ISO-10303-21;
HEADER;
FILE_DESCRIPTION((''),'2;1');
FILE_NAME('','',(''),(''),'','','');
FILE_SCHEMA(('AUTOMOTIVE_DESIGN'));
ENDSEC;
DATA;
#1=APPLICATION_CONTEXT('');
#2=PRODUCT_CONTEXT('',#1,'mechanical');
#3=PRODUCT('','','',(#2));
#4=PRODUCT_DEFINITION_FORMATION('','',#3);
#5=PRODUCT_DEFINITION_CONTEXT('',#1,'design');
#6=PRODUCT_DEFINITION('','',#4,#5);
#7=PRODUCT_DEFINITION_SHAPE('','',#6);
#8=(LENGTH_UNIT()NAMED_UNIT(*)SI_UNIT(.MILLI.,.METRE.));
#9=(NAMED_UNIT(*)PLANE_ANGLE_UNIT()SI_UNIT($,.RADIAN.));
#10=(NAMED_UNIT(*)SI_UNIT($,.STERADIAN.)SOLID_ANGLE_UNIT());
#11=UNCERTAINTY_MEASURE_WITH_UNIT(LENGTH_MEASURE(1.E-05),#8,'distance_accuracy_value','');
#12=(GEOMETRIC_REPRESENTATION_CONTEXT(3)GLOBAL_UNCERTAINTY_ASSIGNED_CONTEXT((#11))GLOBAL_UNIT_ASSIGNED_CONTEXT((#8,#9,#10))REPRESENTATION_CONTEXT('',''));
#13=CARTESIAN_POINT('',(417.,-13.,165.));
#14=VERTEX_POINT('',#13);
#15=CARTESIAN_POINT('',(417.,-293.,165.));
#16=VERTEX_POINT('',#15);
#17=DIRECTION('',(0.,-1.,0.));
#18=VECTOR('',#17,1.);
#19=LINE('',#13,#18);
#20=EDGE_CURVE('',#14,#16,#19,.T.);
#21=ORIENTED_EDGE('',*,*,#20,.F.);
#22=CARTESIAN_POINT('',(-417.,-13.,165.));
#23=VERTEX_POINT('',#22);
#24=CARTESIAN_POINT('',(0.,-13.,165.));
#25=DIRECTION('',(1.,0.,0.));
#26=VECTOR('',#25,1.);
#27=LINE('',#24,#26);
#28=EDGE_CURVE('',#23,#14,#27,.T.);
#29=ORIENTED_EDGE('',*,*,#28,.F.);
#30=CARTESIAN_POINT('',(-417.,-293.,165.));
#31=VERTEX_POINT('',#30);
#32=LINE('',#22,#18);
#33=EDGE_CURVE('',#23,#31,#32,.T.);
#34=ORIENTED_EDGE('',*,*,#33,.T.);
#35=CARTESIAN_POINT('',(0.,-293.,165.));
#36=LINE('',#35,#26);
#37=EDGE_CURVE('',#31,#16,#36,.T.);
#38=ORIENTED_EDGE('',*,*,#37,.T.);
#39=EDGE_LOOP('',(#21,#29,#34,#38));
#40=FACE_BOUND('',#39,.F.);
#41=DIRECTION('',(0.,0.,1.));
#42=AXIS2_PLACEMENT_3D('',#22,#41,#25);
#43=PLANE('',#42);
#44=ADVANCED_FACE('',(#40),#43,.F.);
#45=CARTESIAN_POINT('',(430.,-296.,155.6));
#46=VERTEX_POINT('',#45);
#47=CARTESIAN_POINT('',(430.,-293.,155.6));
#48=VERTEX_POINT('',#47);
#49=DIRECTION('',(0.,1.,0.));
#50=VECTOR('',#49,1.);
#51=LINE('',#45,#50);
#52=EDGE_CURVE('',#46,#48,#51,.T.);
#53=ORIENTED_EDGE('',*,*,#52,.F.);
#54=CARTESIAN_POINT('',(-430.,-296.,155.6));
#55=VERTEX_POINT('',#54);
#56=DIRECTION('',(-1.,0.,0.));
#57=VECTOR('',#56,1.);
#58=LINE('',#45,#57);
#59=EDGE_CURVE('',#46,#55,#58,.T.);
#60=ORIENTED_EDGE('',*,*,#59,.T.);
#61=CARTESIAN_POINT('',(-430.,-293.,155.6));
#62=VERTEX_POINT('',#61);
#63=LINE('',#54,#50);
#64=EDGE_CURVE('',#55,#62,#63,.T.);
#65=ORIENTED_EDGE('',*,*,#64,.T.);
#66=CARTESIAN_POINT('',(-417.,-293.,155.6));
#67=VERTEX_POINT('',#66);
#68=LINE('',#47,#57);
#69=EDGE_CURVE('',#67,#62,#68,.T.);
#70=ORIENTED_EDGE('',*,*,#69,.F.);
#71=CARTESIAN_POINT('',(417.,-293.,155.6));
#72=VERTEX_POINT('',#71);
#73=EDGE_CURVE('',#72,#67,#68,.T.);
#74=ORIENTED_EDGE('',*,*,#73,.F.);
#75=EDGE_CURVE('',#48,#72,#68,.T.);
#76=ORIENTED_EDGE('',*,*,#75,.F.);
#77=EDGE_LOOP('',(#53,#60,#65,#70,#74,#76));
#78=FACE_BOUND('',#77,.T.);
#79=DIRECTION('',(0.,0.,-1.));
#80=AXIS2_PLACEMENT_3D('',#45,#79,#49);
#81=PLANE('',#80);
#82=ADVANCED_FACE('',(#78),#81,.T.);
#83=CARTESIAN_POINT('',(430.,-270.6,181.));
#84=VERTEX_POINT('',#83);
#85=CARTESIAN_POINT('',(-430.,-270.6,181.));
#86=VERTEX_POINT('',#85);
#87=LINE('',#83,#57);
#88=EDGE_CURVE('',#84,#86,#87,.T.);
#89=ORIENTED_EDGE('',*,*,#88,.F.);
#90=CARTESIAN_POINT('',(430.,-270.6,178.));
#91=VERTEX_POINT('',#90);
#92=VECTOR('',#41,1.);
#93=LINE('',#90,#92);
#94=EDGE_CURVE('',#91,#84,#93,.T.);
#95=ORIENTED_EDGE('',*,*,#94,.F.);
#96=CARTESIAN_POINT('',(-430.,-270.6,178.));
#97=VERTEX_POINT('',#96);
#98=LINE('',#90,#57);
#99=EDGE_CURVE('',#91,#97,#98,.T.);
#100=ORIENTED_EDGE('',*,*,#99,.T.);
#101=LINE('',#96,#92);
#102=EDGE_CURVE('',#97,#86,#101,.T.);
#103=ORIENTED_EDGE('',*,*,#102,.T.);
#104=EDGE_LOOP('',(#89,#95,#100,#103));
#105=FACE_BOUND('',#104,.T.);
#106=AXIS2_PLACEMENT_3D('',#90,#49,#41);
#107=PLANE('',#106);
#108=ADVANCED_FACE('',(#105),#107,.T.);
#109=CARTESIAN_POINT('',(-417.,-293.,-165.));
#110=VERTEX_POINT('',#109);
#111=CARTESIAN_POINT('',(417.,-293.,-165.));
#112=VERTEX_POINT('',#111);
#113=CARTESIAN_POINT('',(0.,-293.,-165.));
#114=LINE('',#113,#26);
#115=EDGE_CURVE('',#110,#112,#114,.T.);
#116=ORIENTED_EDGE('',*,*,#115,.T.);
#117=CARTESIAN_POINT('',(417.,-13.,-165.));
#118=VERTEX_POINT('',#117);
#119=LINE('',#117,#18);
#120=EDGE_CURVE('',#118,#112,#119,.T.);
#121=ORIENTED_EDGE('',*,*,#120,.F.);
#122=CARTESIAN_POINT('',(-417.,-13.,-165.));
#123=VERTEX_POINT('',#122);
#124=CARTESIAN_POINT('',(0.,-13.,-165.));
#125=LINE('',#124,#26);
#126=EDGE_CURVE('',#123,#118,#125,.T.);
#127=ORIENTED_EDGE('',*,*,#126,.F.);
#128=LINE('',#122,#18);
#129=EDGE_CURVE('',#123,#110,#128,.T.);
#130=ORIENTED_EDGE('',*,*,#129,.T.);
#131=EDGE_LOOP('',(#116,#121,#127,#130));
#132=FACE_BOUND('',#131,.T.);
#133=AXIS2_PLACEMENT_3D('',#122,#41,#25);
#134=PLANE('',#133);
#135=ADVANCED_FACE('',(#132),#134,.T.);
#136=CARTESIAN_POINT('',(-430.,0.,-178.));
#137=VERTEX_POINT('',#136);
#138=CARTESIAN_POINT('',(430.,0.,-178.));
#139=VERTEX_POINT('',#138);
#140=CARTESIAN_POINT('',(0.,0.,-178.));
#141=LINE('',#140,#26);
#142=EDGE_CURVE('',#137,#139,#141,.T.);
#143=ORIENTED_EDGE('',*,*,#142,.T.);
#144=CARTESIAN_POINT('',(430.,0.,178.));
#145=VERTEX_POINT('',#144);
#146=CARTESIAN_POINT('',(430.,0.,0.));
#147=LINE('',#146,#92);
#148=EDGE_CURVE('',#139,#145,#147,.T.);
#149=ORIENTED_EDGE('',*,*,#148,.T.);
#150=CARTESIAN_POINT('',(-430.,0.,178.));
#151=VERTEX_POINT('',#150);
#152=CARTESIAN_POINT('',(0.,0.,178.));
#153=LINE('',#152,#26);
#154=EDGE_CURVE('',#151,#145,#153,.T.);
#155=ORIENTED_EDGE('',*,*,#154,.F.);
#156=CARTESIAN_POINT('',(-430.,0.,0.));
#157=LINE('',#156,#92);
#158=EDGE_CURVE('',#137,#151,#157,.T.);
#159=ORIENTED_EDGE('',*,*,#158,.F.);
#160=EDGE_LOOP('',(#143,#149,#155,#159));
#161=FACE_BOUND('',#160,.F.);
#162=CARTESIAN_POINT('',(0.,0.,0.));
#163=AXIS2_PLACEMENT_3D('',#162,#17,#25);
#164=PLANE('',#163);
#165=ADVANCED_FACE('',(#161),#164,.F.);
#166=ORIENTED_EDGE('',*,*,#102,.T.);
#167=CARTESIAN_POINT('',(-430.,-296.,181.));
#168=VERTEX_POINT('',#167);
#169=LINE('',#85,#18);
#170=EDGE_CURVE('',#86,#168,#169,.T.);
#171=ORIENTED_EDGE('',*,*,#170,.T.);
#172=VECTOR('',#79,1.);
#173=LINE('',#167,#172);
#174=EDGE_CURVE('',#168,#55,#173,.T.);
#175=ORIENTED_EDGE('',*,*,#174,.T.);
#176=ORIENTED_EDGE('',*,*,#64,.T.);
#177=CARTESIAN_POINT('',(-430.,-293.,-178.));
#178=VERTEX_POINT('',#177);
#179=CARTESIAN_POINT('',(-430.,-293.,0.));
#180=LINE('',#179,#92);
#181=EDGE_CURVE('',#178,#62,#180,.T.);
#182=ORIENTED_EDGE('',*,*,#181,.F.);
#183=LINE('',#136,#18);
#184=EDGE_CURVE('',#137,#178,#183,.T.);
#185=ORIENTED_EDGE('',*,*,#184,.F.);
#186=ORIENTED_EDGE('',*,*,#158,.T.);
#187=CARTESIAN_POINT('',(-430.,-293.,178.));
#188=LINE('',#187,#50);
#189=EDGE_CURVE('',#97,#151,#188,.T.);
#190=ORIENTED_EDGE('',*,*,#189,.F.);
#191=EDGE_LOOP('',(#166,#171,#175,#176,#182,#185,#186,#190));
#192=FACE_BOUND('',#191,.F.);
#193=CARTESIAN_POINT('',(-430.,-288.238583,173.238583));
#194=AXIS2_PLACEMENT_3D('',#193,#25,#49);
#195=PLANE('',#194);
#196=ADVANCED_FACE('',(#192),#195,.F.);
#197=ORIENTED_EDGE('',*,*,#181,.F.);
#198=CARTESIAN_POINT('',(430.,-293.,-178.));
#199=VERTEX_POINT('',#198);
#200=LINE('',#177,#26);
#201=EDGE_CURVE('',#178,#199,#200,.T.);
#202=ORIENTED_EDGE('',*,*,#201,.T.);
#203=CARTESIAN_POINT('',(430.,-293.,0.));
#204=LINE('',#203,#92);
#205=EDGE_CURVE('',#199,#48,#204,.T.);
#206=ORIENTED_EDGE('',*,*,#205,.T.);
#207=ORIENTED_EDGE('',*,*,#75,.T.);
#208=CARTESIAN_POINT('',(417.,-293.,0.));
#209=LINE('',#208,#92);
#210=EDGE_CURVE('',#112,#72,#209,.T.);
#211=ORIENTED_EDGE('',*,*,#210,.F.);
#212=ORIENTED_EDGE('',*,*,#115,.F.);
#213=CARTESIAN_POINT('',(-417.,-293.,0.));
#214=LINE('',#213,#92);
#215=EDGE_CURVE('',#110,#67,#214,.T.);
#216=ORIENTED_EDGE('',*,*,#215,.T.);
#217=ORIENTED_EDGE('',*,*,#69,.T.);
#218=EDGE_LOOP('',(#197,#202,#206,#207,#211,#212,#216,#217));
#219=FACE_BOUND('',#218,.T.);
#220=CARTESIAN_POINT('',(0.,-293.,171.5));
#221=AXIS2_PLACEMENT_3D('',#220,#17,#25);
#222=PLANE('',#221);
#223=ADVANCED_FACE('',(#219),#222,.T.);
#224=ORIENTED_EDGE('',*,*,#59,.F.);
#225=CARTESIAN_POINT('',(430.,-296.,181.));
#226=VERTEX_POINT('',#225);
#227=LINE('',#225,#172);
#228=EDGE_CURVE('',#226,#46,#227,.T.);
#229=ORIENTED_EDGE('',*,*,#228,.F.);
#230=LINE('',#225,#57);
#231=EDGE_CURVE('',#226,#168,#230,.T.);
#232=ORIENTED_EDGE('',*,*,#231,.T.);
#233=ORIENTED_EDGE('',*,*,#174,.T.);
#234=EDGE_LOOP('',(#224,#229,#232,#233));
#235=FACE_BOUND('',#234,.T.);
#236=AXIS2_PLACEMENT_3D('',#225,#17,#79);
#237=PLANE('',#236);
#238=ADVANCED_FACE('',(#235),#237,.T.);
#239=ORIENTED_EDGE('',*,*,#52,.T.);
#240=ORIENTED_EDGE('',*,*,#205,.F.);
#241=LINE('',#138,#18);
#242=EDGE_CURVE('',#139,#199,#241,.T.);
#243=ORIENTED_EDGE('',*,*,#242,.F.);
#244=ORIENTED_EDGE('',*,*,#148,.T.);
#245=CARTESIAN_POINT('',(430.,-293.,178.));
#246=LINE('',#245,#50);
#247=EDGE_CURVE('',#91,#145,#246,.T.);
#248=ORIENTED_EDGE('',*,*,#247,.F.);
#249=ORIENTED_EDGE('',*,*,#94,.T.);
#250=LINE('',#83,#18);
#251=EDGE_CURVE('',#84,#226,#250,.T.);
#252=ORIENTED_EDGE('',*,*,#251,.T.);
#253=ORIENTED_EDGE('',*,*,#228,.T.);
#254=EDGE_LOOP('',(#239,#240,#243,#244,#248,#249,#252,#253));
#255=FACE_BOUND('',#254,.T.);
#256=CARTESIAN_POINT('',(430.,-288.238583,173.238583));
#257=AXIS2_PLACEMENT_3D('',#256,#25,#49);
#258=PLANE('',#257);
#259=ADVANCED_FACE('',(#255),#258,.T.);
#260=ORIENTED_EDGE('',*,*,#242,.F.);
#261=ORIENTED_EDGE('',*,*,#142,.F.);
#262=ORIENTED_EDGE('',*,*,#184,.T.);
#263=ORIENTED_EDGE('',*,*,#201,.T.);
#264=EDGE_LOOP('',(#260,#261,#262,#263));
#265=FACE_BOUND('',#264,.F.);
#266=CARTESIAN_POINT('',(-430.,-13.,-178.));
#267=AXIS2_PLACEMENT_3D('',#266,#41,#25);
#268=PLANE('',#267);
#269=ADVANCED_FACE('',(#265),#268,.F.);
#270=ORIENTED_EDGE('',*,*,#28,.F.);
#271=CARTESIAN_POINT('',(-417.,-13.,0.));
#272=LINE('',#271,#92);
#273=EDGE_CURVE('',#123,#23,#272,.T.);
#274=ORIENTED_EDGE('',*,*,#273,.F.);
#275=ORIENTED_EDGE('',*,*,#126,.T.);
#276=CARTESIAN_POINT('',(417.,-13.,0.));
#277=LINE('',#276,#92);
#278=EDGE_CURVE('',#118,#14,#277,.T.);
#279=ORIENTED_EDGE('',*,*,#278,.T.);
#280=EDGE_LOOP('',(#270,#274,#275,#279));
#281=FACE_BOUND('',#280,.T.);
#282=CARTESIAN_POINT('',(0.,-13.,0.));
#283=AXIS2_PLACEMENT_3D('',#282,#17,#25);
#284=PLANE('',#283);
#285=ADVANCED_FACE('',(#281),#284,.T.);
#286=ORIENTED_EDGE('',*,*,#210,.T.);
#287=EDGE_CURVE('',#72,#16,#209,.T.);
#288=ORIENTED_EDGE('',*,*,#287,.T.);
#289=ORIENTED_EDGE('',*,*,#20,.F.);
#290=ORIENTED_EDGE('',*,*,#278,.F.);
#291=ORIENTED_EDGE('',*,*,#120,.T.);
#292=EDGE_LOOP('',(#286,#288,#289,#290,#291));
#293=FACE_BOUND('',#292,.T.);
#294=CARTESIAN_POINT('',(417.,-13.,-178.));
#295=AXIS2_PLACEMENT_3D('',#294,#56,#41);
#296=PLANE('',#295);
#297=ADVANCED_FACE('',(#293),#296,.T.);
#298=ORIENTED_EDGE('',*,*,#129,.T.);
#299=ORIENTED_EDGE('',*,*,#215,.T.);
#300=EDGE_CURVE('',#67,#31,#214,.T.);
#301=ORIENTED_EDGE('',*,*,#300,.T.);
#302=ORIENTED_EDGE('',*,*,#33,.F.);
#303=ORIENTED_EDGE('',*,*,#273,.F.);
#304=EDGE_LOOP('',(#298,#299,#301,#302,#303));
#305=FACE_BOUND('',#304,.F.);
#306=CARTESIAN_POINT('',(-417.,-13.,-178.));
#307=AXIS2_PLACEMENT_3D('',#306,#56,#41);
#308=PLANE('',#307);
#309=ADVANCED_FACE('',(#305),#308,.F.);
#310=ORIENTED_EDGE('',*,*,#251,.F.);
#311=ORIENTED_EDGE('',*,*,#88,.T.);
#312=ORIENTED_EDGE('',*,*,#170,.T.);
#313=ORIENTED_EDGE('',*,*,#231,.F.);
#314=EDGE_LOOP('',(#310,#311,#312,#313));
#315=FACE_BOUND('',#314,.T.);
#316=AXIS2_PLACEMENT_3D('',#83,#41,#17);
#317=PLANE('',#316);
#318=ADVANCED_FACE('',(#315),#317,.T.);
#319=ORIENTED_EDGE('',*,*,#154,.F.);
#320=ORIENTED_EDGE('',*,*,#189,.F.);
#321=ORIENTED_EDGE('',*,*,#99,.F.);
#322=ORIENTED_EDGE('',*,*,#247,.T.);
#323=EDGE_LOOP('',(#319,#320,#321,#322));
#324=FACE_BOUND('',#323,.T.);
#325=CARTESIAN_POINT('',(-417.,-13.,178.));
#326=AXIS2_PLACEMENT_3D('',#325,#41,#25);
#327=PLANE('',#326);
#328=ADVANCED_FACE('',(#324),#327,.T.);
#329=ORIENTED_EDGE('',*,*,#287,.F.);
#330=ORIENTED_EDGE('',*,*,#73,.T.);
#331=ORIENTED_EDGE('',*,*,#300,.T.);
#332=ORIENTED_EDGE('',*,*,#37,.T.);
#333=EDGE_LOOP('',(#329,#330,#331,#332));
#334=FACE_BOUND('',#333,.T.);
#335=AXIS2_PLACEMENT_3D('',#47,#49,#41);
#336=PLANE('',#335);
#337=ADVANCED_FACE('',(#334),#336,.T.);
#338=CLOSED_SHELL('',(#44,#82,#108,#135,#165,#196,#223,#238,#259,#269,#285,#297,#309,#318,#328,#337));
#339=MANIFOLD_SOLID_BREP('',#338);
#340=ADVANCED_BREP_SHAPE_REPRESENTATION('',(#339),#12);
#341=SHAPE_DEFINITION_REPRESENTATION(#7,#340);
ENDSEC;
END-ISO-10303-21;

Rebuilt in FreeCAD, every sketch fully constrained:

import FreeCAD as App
import Part
import Sketcher
Q = App.Units.Quantity

doc = App.newDocument("Part")
body = doc.addObject("PartDesign::Body", "Body")

sketch1 = body.newObject("Sketcher::SketchObject", "Sketch")
sketch1.AttachmentSupport = (doc.getObject("XZ_Plane"), [""])
sketch1.MapMode = "FlatFace"
sketch1.addGeometry([
    Part.LineSegment(App.Vector(-430, 178, 0), App.Vector(-430, -178, 0)),
    Part.LineSegment(App.Vector(-430, -178, 0), App.Vector(430, -178, 0)),
    Part.LineSegment(App.Vector(430, -178, 0), App.Vector(430, 178, 0)),
    Part.LineSegment(App.Vector(430, 178, 0), App.Vector(-430, 178, 0)),
], False)
sketch1.addConstraint([
    Sketcher.Constraint("Coincident", 0, 2, 1, 1),
    Sketcher.Constraint("Coincident", 1, 2, 2, 1),
    Sketcher.Constraint("Coincident", 2, 2, 3, 1),
    Sketcher.Constraint("Coincident", 3, 2, 0, 1),
    Sketcher.Constraint("Vertical", 0),
    Sketcher.Constraint("Horizontal", 1),
    Sketcher.Constraint("Vertical", 2),
    Sketcher.Constraint("Horizontal", 3),
    Sketcher.Constraint("Symmetric", 0, 2, 2, 2, -1, 1),
    Sketcher.Constraint("DistanceX", 1, 1, 1, 2, Q("860 mm")),
    Sketcher.Constraint("DistanceY", 0, 2, 0, 1, Q("356 mm")),
])
pad1 = body.newObject("PartDesign::Pad", "Pad")
pad1.Profile = sketch1
pad1.Length = 13

sketch2 = body.newObject("Sketcher::SketchObject", "Sketch001")
sketch2.AttachmentSupport = (doc.getObject("XZ_Plane"), [""])
sketch2.MapMode = "FlatFace"
sketch2.AttachmentOffset = App.Placement(App.Vector(0, 0, 13), App.Rotation())
sketch2.addGeometry([
    Part.LineSegment(App.Vector(-430, 178, 0), App.Vector(-430, -178, 0)),
    Part.LineSegment(App.Vector(-430, -178, 0), App.Vector(-417, -178, 0)),
    Part.LineSegment(App.Vector(-417, -178, 0), App.Vector(-417, 178, 0)),
    Part.LineSegment(App.Vector(-417, 178, 0), App.Vector(-430, 178, 0)),
    Part.LineSegment(App.Vector(417, 178, 0), App.Vector(417, -178, 0)),
    Part.LineSegment(App.Vector(417, -178, 0), App.Vector(430, -178, 0)),
    Part.LineSegment(App.Vector(430, -178, 0), App.Vector(430, 178, 0)),
    Part.LineSegment(App.Vector(430, 178, 0), App.Vector(417, 178, 0)),
], False)
sketch2.addConstraint([
    Sketcher.Constraint("Coincident", 0, 2, 1, 1),
    Sketcher.Constraint("Coincident", 1, 2, 2, 1),
    Sketcher.Constraint("Coincident", 2, 2, 3, 1),
    Sketcher.Constraint("Coincident", 3, 2, 0, 1),
    Sketcher.Constraint("Coincident", 4, 2, 5, 1),
    Sketcher.Constraint("Coincident", 5, 2, 6, 1),
    Sketcher.Constraint("Coincident", 6, 2, 7, 1),
    Sketcher.Constraint("Coincident", 7, 2, 4, 1),
    Sketcher.Constraint("Vertical", 0),
    Sketcher.Constraint("Horizontal", 1),
    Sketcher.Constraint("Vertical", 2),
    Sketcher.Constraint("Horizontal", 3),
    Sketcher.Constraint("Vertical", 4),
    Sketcher.Constraint("Horizontal", 5),
    Sketcher.Constraint("Vertical", 6),
    Sketcher.Constraint("Horizontal", 7),
    Sketcher.Constraint("Symmetric", 2, 2, 4, 2, -1, 1),
    Sketcher.Constraint("Symmetric", 0, 2, 6, 2, -1, 1),
    Sketcher.Constraint("Horizontal", 1, 2, 4, 2),
    Sketcher.Constraint("DistanceX", 1, 1, 1, 2, Q("13 mm")),
    Sketcher.Constraint("DistanceY", 0, 2, 0, 1, Q("356 mm")),
    Sketcher.Constraint("DistanceX", 0, 2, -1, 1, Q("430 mm")),
])
pad2 = body.newObject("PartDesign::Pad", "Pad001")
pad2.Profile = sketch2
pad2.Length = 280

sketch3 = body.newObject("Sketcher::SketchObject", "Sketch002")
sketch3.AttachmentSupport = (doc.getObject("XZ_Plane"), [""])
sketch3.MapMode = "FlatFace"
sketch3.AttachmentOffset = App.Placement(App.Vector(0, 0, 13), App.Rotation())
sketch3.addGeometry([
    Part.LineSegment(App.Vector(-417, 178, 0), App.Vector(-417, 165, 0)),
    Part.LineSegment(App.Vector(-417, 165, 0), App.Vector(417, 165, 0)),
    Part.LineSegment(App.Vector(417, 165, 0), App.Vector(417, 178, 0)),
    Part.LineSegment(App.Vector(417, 178, 0), App.Vector(-417, 178, 0)),
    Part.LineSegment(App.Vector(-417, -165, 0), App.Vector(-417, -178, 0)),
    Part.LineSegment(App.Vector(-417, -178, 0), App.Vector(417, -178, 0)),
    Part.LineSegment(App.Vector(417, -178, 0), App.Vector(417, -165, 0)),
    Part.LineSegment(App.Vector(417, -165, 0), App.Vector(-417, -165, 0)),
], False)
sketch3.addConstraint([
    Sketcher.Constraint("Coincident", 0, 2, 1, 1),
    Sketcher.Constraint("Coincident", 1, 2, 2, 1),
    Sketcher.Constraint("Coincident", 2, 2, 3, 1),
    Sketcher.Constraint("Coincident", 3, 2, 0, 1),
    Sketcher.Constraint("Coincident", 4, 2, 5, 1),
    Sketcher.Constraint("Coincident", 5, 2, 6, 1),
    Sketcher.Constraint("Coincident", 6, 2, 7, 1),
    Sketcher.Constraint("Coincident", 7, 2, 4, 1),
    Sketcher.Constraint("Vertical", 0),
    Sketcher.Constraint("Horizontal", 1),
    Sketcher.Constraint("Vertical", 2),
    Sketcher.Constraint("Horizontal", 3),
    Sketcher.Constraint("Vertical", 4),
    Sketcher.Constraint("Horizontal", 5),
    Sketcher.Constraint("Vertical", 6),
    Sketcher.Constraint("Horizontal", 7),
    Sketcher.Constraint("Symmetric", 2, 2, 4, 2, -1, 1),
    Sketcher.Constraint("Symmetric", 0, 2, 6, 2, -1, 1),
    Sketcher.Constraint("Vertical", 3, 2, 4, 2),
    Sketcher.Constraint("DistanceX", 1, 1, 1, 2, Q("834 mm")),
    Sketcher.Constraint("DistanceY", 0, 2, 0, 1, Q("13 mm")),
    Sketcher.Constraint("DistanceY", -1, 1, 0, 2, Q("165 mm")),
])
pad3 = body.newObject("PartDesign::Pad", "Pad002")
pad3.Profile = sketch3
pad3.Length = 280

sketch4 = body.newObject("Sketcher::SketchObject", "Sketch003")
sketch4.AttachmentSupport = (doc.getObject("YZ_Plane"), [""])
sketch4.MapMode = "FlatFace"
sketch4.AttachmentOffset = App.Placement(App.Vector(0, 0, 430), App.Rotation())
sketch4.addGeometry([
    Part.LineSegment(App.Vector(-270.6, 178, 0), App.Vector(-270.6, 181, 0)),
    Part.LineSegment(App.Vector(-270.6, 181, 0), App.Vector(-296, 181, 0)),
    Part.LineSegment(App.Vector(-296, 181, 0), App.Vector(-296, 155.6, 0)),
    Part.LineSegment(App.Vector(-296, 155.6, 0), App.Vector(-293, 155.6, 0)),
    Part.LineSegment(App.Vector(-293, 155.6, 0), App.Vector(-293, 178, 0)),
    Part.LineSegment(App.Vector(-293, 178, 0), App.Vector(-270.6, 178, 0)),
], False)
sketch4.addConstraint([
    Sketcher.Constraint("Coincident", 0, 2, 1, 1),
    Sketcher.Constraint("Coincident", 1, 2, 2, 1),
    Sketcher.Constraint("Coincident", 2, 2, 3, 1),
    Sketcher.Constraint("Coincident", 3, 2, 4, 1),
    Sketcher.Constraint("Coincident", 4, 2, 5, 1),
    Sketcher.Constraint("Coincident", 5, 2, 0, 1),
    Sketcher.Constraint("Vertical", 0),
    Sketcher.Constraint("Horizontal", 1),
    Sketcher.Constraint("Vertical", 2),
    Sketcher.Constraint("Horizontal", 3),
    Sketcher.Constraint("Vertical", 4),
    Sketcher.Constraint("Horizontal", 5),
    Sketcher.Constraint("Equal", 3, 0),
    Sketcher.Constraint("Equal", 1, 2),
    Sketcher.Constraint("DistanceX", 3, 1, 3, 2, Q("3 mm")),
    Sketcher.Constraint("DistanceX", 1, 2, 1, 1, Q("25.4 mm")),
    Sketcher.Constraint("DistanceY", -1, 1, 0, 2, Q("181 mm")),
    Sketcher.Constraint("DistanceX", 1, 2, -1, 1, Q("296 mm")),
])
pad4 = body.newObject("PartDesign::Pad", "Pad003")
pad4.Profile = sketch4
pad4.Type = "UpToLast"
pad4.Reversed = True

doc.recompute()
